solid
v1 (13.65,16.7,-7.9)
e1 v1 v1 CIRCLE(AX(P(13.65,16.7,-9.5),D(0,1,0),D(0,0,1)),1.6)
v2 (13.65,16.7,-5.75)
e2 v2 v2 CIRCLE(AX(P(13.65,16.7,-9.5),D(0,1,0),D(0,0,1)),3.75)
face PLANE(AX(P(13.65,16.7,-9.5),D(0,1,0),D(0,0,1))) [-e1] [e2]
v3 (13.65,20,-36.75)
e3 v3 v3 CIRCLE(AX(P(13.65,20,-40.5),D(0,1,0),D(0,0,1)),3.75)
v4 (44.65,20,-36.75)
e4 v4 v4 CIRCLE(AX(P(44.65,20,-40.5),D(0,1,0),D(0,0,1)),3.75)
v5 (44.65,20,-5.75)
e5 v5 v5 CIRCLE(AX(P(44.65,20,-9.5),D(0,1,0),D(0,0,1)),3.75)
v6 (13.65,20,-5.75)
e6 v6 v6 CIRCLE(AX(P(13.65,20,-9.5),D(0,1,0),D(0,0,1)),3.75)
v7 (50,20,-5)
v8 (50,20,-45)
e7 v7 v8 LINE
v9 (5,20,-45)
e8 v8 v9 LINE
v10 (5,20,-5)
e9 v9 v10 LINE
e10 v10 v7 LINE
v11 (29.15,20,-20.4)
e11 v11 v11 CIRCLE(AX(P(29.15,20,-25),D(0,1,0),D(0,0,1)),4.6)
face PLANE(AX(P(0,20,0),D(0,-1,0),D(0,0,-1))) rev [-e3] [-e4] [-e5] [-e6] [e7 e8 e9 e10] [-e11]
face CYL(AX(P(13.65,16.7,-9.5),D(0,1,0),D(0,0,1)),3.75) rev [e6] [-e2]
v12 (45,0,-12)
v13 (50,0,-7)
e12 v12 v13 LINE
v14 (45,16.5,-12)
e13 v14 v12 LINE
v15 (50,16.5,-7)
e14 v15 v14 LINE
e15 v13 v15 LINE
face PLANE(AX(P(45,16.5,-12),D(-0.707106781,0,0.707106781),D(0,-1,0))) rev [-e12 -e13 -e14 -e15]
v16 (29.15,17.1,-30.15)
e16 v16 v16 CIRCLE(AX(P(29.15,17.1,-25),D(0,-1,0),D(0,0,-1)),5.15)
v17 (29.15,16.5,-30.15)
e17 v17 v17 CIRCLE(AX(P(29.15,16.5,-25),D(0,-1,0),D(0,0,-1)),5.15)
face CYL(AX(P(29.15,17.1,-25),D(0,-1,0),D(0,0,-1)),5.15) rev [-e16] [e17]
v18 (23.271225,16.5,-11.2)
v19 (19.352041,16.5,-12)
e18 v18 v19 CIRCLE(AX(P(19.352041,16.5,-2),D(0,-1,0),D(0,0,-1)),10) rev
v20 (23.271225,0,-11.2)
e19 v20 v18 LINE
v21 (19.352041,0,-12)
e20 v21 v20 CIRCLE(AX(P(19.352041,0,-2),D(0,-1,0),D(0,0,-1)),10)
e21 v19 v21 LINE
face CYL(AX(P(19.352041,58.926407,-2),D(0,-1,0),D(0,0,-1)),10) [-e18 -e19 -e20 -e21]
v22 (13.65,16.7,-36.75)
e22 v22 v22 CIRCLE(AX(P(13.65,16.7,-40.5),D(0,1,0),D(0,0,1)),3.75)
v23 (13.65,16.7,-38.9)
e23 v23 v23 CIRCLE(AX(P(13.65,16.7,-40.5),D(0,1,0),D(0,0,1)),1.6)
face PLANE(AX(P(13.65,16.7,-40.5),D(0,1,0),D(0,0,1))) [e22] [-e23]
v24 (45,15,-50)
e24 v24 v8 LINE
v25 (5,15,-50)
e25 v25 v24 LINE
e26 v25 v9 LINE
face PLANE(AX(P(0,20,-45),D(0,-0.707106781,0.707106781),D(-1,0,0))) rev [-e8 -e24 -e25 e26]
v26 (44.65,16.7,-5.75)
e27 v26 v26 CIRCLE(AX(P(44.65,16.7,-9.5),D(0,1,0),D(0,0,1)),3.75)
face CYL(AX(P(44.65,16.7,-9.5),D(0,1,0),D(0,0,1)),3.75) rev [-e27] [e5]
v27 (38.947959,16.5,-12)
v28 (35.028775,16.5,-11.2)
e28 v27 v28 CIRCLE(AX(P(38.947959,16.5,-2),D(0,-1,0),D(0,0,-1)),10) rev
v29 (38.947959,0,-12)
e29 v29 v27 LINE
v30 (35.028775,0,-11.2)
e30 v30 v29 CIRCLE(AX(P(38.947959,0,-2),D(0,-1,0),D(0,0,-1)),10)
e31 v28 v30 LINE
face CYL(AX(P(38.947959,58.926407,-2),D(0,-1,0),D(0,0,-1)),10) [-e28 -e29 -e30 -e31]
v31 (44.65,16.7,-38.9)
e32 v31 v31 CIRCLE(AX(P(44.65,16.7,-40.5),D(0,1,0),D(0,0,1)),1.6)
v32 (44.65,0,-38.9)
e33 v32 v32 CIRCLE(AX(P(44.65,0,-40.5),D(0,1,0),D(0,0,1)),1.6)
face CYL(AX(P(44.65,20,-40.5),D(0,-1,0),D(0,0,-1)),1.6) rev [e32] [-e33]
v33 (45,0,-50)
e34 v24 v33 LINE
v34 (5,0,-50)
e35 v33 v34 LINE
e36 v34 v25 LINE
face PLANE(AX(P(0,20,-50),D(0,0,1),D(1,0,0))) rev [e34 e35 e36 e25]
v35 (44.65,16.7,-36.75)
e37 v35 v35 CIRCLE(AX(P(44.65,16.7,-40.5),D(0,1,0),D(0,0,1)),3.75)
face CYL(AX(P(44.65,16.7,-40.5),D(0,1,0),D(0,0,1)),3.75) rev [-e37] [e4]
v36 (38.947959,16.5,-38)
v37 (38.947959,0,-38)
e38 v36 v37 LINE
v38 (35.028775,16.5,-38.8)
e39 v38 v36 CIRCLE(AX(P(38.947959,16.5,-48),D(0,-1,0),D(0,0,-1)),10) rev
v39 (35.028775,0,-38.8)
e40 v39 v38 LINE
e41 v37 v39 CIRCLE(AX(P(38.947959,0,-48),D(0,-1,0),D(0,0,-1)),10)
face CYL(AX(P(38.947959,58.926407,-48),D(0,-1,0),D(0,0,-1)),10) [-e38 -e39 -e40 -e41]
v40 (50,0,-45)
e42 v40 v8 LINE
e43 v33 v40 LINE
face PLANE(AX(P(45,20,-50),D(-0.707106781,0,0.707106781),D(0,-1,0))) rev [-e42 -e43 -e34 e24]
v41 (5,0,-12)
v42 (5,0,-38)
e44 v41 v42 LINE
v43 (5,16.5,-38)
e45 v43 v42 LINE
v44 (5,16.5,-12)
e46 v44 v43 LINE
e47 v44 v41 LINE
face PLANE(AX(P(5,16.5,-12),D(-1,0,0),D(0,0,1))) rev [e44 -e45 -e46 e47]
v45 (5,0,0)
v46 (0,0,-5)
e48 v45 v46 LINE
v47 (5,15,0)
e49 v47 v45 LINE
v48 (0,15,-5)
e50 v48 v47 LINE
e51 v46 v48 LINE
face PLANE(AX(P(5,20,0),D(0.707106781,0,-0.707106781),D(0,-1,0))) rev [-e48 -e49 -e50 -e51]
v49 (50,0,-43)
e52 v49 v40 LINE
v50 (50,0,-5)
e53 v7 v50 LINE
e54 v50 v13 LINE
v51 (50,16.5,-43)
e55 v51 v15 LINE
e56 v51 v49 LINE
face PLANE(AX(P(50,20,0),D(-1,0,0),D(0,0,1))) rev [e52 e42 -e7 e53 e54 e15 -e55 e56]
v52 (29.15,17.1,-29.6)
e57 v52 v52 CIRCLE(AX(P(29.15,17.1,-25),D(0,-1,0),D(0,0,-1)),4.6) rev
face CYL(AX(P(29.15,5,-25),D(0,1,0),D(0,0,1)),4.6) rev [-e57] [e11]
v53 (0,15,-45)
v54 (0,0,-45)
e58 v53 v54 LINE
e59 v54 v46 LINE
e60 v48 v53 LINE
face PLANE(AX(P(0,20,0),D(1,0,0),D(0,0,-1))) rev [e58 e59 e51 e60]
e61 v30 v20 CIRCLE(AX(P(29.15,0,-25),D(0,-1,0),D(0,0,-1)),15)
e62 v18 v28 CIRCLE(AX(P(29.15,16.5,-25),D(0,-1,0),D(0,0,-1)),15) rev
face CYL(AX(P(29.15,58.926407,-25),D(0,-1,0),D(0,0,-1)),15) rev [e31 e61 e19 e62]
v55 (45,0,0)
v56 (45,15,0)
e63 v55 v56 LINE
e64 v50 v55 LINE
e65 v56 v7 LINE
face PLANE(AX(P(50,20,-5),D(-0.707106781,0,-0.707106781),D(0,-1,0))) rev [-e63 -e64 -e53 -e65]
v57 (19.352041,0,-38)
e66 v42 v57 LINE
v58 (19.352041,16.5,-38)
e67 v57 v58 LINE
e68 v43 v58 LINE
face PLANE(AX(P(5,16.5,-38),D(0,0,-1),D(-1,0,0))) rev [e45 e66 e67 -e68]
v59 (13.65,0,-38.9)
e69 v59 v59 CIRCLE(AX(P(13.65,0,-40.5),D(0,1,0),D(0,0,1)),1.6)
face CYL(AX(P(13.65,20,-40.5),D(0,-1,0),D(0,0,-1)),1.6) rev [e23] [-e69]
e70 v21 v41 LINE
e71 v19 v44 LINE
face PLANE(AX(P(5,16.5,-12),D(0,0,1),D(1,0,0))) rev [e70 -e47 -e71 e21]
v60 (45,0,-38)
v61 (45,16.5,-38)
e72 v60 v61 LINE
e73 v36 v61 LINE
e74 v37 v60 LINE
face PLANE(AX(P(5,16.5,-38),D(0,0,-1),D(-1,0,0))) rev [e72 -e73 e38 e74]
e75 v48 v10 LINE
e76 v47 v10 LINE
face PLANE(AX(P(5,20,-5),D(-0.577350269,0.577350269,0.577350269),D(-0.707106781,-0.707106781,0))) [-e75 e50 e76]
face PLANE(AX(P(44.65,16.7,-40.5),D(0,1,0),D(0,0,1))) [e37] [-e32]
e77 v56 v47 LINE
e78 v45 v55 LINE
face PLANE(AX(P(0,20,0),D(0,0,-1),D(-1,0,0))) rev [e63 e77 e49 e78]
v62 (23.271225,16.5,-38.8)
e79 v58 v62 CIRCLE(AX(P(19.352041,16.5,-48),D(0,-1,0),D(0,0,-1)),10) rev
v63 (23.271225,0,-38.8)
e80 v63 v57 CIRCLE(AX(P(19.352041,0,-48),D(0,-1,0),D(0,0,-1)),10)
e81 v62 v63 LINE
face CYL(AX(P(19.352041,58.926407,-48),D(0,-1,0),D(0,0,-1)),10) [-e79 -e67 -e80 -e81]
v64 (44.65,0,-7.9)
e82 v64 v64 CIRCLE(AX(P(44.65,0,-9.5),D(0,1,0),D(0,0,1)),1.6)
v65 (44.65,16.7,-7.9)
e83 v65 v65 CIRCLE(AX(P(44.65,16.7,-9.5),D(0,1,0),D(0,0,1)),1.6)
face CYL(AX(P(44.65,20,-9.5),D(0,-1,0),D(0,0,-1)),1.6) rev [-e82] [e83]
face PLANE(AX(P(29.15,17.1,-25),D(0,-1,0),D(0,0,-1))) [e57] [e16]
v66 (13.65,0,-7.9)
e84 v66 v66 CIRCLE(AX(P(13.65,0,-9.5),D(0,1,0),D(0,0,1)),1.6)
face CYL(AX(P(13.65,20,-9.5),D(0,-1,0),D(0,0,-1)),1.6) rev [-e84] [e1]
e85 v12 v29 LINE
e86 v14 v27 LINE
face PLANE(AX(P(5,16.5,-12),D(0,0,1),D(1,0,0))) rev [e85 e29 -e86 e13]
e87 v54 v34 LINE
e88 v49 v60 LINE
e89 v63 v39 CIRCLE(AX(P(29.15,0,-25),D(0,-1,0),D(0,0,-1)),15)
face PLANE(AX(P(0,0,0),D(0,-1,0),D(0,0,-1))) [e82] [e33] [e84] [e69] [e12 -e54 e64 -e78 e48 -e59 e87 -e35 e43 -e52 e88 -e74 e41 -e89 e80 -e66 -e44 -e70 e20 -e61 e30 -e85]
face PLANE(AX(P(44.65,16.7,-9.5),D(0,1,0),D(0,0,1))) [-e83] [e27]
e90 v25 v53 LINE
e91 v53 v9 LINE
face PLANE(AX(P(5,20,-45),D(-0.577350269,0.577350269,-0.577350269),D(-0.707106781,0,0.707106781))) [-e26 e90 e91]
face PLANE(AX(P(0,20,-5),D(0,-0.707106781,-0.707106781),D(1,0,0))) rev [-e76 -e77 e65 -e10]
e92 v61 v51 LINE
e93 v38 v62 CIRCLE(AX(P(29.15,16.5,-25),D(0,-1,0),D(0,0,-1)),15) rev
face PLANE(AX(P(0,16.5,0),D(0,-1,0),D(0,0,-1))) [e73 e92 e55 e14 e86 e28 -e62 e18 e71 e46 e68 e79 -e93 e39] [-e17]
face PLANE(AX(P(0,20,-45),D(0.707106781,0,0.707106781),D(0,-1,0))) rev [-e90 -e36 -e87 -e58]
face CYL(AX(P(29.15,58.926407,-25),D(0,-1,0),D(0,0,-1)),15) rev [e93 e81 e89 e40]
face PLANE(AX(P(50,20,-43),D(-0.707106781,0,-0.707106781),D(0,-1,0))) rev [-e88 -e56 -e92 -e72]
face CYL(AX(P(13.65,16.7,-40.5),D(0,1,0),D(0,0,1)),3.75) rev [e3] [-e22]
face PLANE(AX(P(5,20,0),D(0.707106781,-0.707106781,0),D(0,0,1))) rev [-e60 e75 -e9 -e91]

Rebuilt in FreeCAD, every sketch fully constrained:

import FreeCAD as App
import Part
import Sketcher

V = App.Vector


def edges_at(feature, points):
    """Names of the edges that pass closest to the given points."""
    edges = feature.Shape.Edges
    near = lambda p: min(range(len(edges)), key=lambda i: edges[i].distToShape(Part.Vertex(*p))[0])
    return sorted({f"Edge{near(p) + 1}" for p in points})

doc = App.newDocument("Part")
body = doc.addObject("PartDesign::Body", "Body")

# Sketch on XZ plane
sketch1 = body.newObject("Sketcher::SketchObject", "Sketch")
sketch1.AttachmentSupport = (doc.getObject("XZ_Plane"), [""])
sketch1.MapMode = "FlatFace"
sketch1.addGeometry(Part.LineSegment(V(0, -50, 0), V(0, 0, 0)), False)
sketch1.addGeometry(Part.LineSegment(V(0, 0, 0), V(50, 0, 0)), False)
sketch1.addGeometry(Part.LineSegment(V(50, 0, 0), V(50, -50, 0)), False)
sketch1.addGeometry(Part.LineSegment(V(50, -50, 0), V(0, -50, 0)), False)
sketch1.addGeometry(Part.Circle(V(13.65, -9.5, 0), V(0, 0, 1), 1.6), False)
sketch1.addGeometry(Part.Circle(V(44.65, -9.5, 0), V(0, 0, 1), 1.6), False)
sketch1.addGeometry(Part.Circle(V(13.65, -40.5, 0), V(0, 0, 1), 1.6), False)
sketch1.addGeometry(Part.Circle(V(44.65, -40.5, 0), V(0, 0, 1), 1.6), False)
sketch1.addConstraint(Sketcher.Constraint("Coincident", 0, 2, 1, 1))
sketch1.addConstraint(Sketcher.Constraint("Coincident", 1, 2, 2, 1))
sketch1.addConstraint(Sketcher.Constraint("Coincident", 2, 2, 3, 1))
sketch1.addConstraint(Sketcher.Constraint("Coincident", 3, 2, 0, 1))
sketch1.addConstraint(Sketcher.Constraint("Vertical", 0))
sketch1.addConstraint(Sketcher.Constraint("Horizontal", 1))
sketch1.addConstraint(Sketcher.Constraint("Vertical", 2))
sketch1.addConstraint(Sketcher.Constraint("Horizontal", 3))
sketch1.addConstraint(Sketcher.Constraint("Coincident", 0, 2, -1, 1))
sketch1.addConstraint(Sketcher.Constraint("Equal", 4, 5))
sketch1.addConstraint(Sketcher.Constraint("Equal", 5, 6))
sketch1.addConstraint(Sketcher.Constraint("Equal", 6, 7))
sketch1.addConstraint(Sketcher.Constraint("Horizontal", 4, 3, 5, 3))
sketch1.addConstraint(Sketcher.Constraint("Horizontal", 6, 3, 7, 3))
sketch1.addConstraint(Sketcher.Constraint("Vertical", 4, 3, 6, 3))
sketch1.addConstraint(Sketcher.Constraint("Vertical", 5, 3, 7, 3))
sketch1.addConstraint(Sketcher.Constraint("Equal", 3, 0))
sketch1.addConstraint(Sketcher.Constraint("Diameter", 4, 3.2))
sketch1.addConstraint(Sketcher.Constraint("DistanceX", 1, 1, 1, 2, 50.0))
sketch1.addConstraint(Sketcher.Constraint("DistanceX", 4, 3, 5, 3, 31.0))
sketch1.addConstraint(Sketcher.Constraint("DistanceY", 6, 3, 4, 3, 31.0))
sketch1.addConstraint(Sketcher.Constraint("DistanceY", 4, 3, -1, 1, 9.5))
sketch1.addConstraint(Sketcher.Constraint("DistanceX", -1, 1, 4, 3, 13.65))
pad1 = body.newObject("PartDesign::Pad", "Pad")
pad1.Profile = sketch1
pad1.Length = 20
pad1.Reversed = True

# Sketch on XZ plane
sketch2 = body.newObject("Sketcher::SketchObject", "Sketch001")
sketch2.AttachmentSupport = (doc.getObject("XZ_Plane"), [""])
sketch2.MapMode = "FlatFace"
sketch2.addGeometry(Part.LineSegment(V(5, -12, 0), V(5, -38, 0)), False)
sketch2.addGeometry(Part.LineSegment(V(5, -38, 0), V(50, -38, 0)), False)
sketch2.addGeometry(Part.LineSegment(V(50, -38, 0), V(50, -12, 0)), False)
sketch2.addGeometry(Part.LineSegment(V(50, -12, 0), V(5, -12, 0)), False)
sketch2.addConstraint(Sketcher.Constraint("Coincident", 0, 2, 1, 1))
sketch2.addConstraint(Sketcher.Constraint("Coincident", 1, 2, 2, 1))
sketch2.addConstraint(Sketcher.Constraint("Coincident", 2, 2, 3, 1))
sketch2.addConstraint(Sketcher.Constraint("Coincident", 3, 2, 0, 1))
sketch2.addConstraint(Sketcher.Constraint("Vertical", 0))
sketch2.addConstraint(Sketcher.Constraint("Horizontal", 1))
sketch2.addConstraint(Sketcher.Constraint("Vertical", 2))
sketch2.addConstraint(Sketcher.Constraint("Horizontal", 3))
sketch2.addConstraint(Sketcher.Constraint("DistanceX", 1, 1, 1, 2, 45.0))
sketch2.addConstraint(Sketcher.Constraint("DistanceY", 0, 2, 0, 1, 26.0))
sketch2.addConstraint(Sketcher.Constraint("DistanceX", -1, 1, 0, 2, 5.0))
sketch2.addConstraint(Sketcher.Constraint("DistanceY", 0, 2, -1, 1, 38.0))
pocket1 = body.newObject("PartDesign::Pocket", "Pocket")
pocket1.Profile = sketch2
pocket1.Length = 16.5

# Sketch on XZ plane
sketch3 = body.newObject("Sketcher::SketchObject", "Sketch002")
sketch3.AttachmentSupport = (doc.getObject("XZ_Plane"), [""])
sketch3.MapMode = "FlatFace"
sketch3.AttachmentOffset = App.Placement(V(0, 0, -20), App.Rotation())
sketch3.addGeometry(Part.Circle(V(29.15, -25, 0), V(0, 0, 1), 4.6), False)
sketch3.addConstraint(Sketcher.Constraint("Diameter", 0, 9.2))
sketch3.addConstraint(Sketcher.Constraint("DistanceY", 0, 3, -1, 1, 25.0))
sketch3.addConstraint(Sketcher.Constraint("DistanceX", -1, 1, 0, 3, 29.15))
pocket2 = body.newObject("PartDesign::Pocket", "Pocket001")
pocket2.Profile = sketch3
pocket2.Length = 15
pocket2.Reversed = True

# Sketch on XZ plane
sketch4 = body.newObject("Sketcher::SketchObject", "Sketch003")
sketch4.AttachmentSupport = (doc.getObject("XZ_Plane"), [""])
sketch4.MapMode = "FlatFace"
sketch4.AttachmentOffset = App.Placement(V(0, 0, -16.5), App.Rotation())
sketch4.addGeometry(Part.Circle(V(29.15, -25, 0), V(0, 0, 1), 5.15), False)
sketch4.addConstraint(Sketcher.Constraint("Diameter", 0, 10.3))
sketch4.addConstraint(Sketcher.Constraint("DistanceY", 0, 3, -1, 1, 25.0))
sketch4.addConstraint(Sketcher.Constraint("DistanceX", -1, 1, 0, 3, 29.15))
pocket3 = body.newObject("PartDesign::Pocket", "Pocket002")
pocket3.Profile = sketch4
pocket3.Length = 0.6
doc.recompute()

chamfer = body.newObject("PartDesign::Chamfer", "Chamfer")
chamfer.Base = (pocket3, edges_at(pocket3, [
    (25, 20, -50),
    (50, 8.25, -12),
    (50, 8.25, -38),
    (0, 20, -25),
    (0, 10, -50),
    (50, 10, -50),
    (50, 10, 0),
    (0, 10, 0),
    (25, 20, 0),
]))
chamfer.Size = 5

# Sketch on XZ plane
sketch5 = body.newObject("Sketcher::SketchObject", "Sketch004")
sketch5.AttachmentSupport = (doc.getObject("XZ_Plane"), [""])
sketch5.MapMode = "FlatFace"
sketch5.AttachmentOffset = App.Placement(V(0, 0, -20), App.Rotation())
sketch5.addGeometry(Part.Circle(V(13.65, -40.5, 0), V(0, 0, 1), 3.75), False)
sketch5.addGeometry(Part.Circle(V(44.65, -40.5, 0), V(0, 0, 1), 3.75), False)
sketch5.addGeometry(Part.Circle(V(44.65, -9.5, 0), V(0, 0, 1), 3.75), False)
sketch5.addGeometry(Part.Circle(V(13.65, -9.5, 0), V(0, 0, 1), 3.75), False)
sketch5.addConstraint(Sketcher.Constraint("Equal", 0, 1))
sketch5.addConstraint(Sketcher.Constraint("Equal", 1, 2))
sketch5.addConstraint(Sketcher.Constraint("Equal", 2, 3))
sketch5.addConstraint(Sketcher.Constraint("Horizontal", 0, 3, 1, 3))
sketch5.addConstraint(Sketcher.Constraint("Horizontal", 2, 3, 3, 3))
sketch5.addConstraint(Sketcher.Constraint("Vertical", 1, 3, 2, 3))
sketch5.addConstraint(Sketcher.Constraint("Vertical", 0, 3, 3, 3))
sketch5.addConstraint(Sketcher.Constraint("Diameter", 0, 7.5))
sketch5.addConstraint(Sketcher.Constraint("DistanceX", 0, 3, 1, 3, 31.0))
sketch5.addConstraint(Sketcher.Constraint("DistanceY", 1, 3, 2, 3, 31.0))
sketch5.addConstraint(Sketcher.Constraint("DistanceY", 0, 3, -1, 1, 40.5))
sketch5.addConstraint(Sketcher.Constraint("DistanceX", -1, 1, 0, 3, 13.65))
pocket4 = body.newObject("PartDesign::Pocket", "Pocket003")
pocket4.Profile = sketch5
pocket4.Length = 3.3
pocket4.Reversed = True

# Sketch on XZ plane
sketch6 = body.newObject("Sketcher::SketchObject", "Sketch005")
sketch6.AttachmentSupport = (doc.getObject("XZ_Plane"), [""])
sketch6.MapMode = "FlatFace"
sketch6.addGeometry(Part.Circle(V(29.15, -25, 0), V(0, 0, 1), 15), False)
sketch6.addConstraint(Sketcher.Constraint("Diameter", 0, 30.0))
sketch6.addConstraint(Sketcher.Constraint("DistanceY", 0, 3, -1, 1, 25.0))
sketch6.addConstraint(Sketcher.Constraint("DistanceX", -1, 1, 0, 3, 29.15))
pocket5 = body.newObject("PartDesign::Pocket", "Pocket004")
pocket5.Profile = sketch6
pocket5.Length = 16.5
doc.recompute()

fillet = body.newObject("PartDesign::Fillet", "Fillet")
fillet.Base = (pocket5, edges_at(pocket5, [
    (21.667, 8.25, -12),
    (36.633, 8.25, -12),
    (36.633, 8.25, -38),
    (21.667, 8.25, -38),
]))
fillet.Radius = 10

doc.recompute()
